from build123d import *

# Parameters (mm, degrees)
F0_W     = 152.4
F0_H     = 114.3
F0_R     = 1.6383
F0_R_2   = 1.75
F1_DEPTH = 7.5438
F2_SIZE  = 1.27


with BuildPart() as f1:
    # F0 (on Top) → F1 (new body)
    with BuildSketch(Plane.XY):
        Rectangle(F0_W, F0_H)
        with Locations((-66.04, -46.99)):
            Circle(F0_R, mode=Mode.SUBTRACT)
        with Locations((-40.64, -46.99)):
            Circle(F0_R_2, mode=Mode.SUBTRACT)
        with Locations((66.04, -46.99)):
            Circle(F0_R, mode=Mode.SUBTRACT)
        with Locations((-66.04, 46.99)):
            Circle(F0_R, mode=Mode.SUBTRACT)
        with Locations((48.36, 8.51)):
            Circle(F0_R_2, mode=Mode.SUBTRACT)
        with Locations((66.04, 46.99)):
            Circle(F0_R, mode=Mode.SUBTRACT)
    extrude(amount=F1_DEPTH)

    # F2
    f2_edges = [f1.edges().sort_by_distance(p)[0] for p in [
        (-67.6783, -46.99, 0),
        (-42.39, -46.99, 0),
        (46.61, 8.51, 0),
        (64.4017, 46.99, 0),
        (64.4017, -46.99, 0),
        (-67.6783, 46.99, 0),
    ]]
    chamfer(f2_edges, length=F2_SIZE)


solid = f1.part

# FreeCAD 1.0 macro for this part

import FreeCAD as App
import Part
import Sketcher
Q = App.Units.Quantity


def edges_at(feature, points):
    """Names of the edges that pass closest to the given points."""
    edges = feature.Shape.Edges
    near = lambda p: min(range(len(edges)), key=lambda i: edges[i].distToShape(Part.Vertex(*p))[0])
    return sorted({f"Edge{near(p) + 1}" for p in points})


def add_polygon(sketch, points):
    """Adds a closed chain of lines whose ends are joined by coincident constraints."""
    first, n = sketch.GeometryCount, len(points)
    for a, b in zip(points, points[1:] + points[:1]):
        sketch.addGeometry(Part.LineSegment(App.Vector(*a, 0), App.Vector(*b, 0)), False)
    for i in range(n):
        sketch.addConstraint(Sketcher.Constraint("Coincident", first + i, 2, first + (i + 1) % n, 1))

doc = App.newDocument("Part")
body = doc.addObject("PartDesign::Body", "Body")

sketch1 = body.newObject("Sketcher::SketchObject", "Sketch")
sketch1.AttachmentSupport = (doc.getObject("XY_Plane"), [""])
sketch1.MapMode = "FlatFace"
add_polygon(sketch1, [(-76.2, 57.15), (-76.2, -57.15), (76.2, -57.15), (76.2, 57.15)])
sketch1.addGeometry(Part.Circle(App.Vector(-66.04, -46.99, 0), App.Vector(0, 0, 1), 1.6383), False)
sketch1.addGeometry(Part.Circle(App.Vector(-40.64, -46.99, 0), App.Vector(0, 0, 1), 1.75), False)
sketch1.addGeometry(Part.Circle(App.Vector(66.04, -46.99, 0), App.Vector(0, 0, 1), 1.6383), False)
sketch1.addGeometry(Part.Circle(App.Vector(-66.04, 46.99, 0), App.Vector(0, 0, 1), 1.6383), False)
sketch1.addGeometry(Part.Circle(App.Vector(48.36, 8.51, 0), App.Vector(0, 0, 1), 1.75), False)
sketch1.addGeometry(Part.Circle(App.Vector(66.04, 46.99, 0), App.Vector(0, 0, 1), 1.6383), False)
sketch1.addConstraint(Sketcher.Constraint("Vertical", 0))
sketch1.addConstraint(Sketcher.Constraint("Horizontal", 1))
sketch1.addConstraint(Sketcher.Constraint("Vertical", 2))
sketch1.addConstraint(Sketcher.Constraint("Horizontal", 3))
sketch1.addConstraint(Sketcher.Constraint("Equal", 4, 6))
sketch1.addConstraint(Sketcher.Constraint("Equal", 6, 7))
sketch1.addConstraint(Sketcher.Constraint("Equal", 5, 8))
sketch1.addConstraint(Sketcher.Constraint("Equal", 7, 9))
sketch1.addConstraint(Sketcher.Constraint("Symmetric", 6, 3, 7, 3, -1, 1))
sketch1.addConstraint(Sketcher.Constraint("Symmetric", 4, 3, 9, 3, -1, 1))
sketch1.addConstraint(Sketcher.Constraint("Symmetric", 0, 2, 2, 2, -1, 1))
sketch1.addConstraint(Sketcher.Constraint("Symmetric", 4, 3, 6, 3, -2))
sketch1.addConstraint(Sketcher.Constraint("Horizontal", 4, 3, 5, 3))
sketch1.addConstraint(Sketcher.Constraint("DistanceX", 1, 1, 1, 2, Q("6 in")))
sketch1.addConstraint(Sketcher.Constraint("Diameter", 4, Q("0.129 in")))
sketch1.addConstraint(Sketcher.Constraint("DistanceY", 0, 2, 0, 1, Q("4.5 in")))
sketch1.addConstraint(Sketcher.Constraint("DistanceX", 4, 3, 5, 3, Q("1 in")))
sketch1.addConstraint(Sketcher.Constraint("DistanceX", 4, 3, -1, 1, Q("2.6 in")))
sketch1.addConstraint(Sketcher.Constraint("DistanceY", 4, 3, 7, 3, Q("3.7 in")))
sketch1.addConstraint(Sketcher.Constraint("Diameter", 5, Q("3.5 mm")))
sketch1.addConstraint(Sketcher.Constraint("DistanceX", -1, 1, 8, 3, Q("48.36 mm")))
sketch1.addConstraint(Sketcher.Constraint("DistanceY", -1, 1, 8, 3, Q("8.51 mm")))
pad1 = body.newObject("PartDesign::Pad", "Pad")
pad1.Profile = sketch1
pad1.Length = Q("0.297 in")
doc.recompute()

chamfer = body.newObject("PartDesign::Chamfer", "Chamfer")
chamfer.Base = (pad1, edges_at(pad1, [
    (-67.678, -46.99, 0),
    (-42.39, -46.99, 0),
    (46.61, 8.51, 0),
    (64.402, 46.99, 0),
    (64.402, -46.99, 0),
    (-67.678, 46.99, 0),
]))
chamfer.Size = Q("0.05 in")

doc.recompute()
